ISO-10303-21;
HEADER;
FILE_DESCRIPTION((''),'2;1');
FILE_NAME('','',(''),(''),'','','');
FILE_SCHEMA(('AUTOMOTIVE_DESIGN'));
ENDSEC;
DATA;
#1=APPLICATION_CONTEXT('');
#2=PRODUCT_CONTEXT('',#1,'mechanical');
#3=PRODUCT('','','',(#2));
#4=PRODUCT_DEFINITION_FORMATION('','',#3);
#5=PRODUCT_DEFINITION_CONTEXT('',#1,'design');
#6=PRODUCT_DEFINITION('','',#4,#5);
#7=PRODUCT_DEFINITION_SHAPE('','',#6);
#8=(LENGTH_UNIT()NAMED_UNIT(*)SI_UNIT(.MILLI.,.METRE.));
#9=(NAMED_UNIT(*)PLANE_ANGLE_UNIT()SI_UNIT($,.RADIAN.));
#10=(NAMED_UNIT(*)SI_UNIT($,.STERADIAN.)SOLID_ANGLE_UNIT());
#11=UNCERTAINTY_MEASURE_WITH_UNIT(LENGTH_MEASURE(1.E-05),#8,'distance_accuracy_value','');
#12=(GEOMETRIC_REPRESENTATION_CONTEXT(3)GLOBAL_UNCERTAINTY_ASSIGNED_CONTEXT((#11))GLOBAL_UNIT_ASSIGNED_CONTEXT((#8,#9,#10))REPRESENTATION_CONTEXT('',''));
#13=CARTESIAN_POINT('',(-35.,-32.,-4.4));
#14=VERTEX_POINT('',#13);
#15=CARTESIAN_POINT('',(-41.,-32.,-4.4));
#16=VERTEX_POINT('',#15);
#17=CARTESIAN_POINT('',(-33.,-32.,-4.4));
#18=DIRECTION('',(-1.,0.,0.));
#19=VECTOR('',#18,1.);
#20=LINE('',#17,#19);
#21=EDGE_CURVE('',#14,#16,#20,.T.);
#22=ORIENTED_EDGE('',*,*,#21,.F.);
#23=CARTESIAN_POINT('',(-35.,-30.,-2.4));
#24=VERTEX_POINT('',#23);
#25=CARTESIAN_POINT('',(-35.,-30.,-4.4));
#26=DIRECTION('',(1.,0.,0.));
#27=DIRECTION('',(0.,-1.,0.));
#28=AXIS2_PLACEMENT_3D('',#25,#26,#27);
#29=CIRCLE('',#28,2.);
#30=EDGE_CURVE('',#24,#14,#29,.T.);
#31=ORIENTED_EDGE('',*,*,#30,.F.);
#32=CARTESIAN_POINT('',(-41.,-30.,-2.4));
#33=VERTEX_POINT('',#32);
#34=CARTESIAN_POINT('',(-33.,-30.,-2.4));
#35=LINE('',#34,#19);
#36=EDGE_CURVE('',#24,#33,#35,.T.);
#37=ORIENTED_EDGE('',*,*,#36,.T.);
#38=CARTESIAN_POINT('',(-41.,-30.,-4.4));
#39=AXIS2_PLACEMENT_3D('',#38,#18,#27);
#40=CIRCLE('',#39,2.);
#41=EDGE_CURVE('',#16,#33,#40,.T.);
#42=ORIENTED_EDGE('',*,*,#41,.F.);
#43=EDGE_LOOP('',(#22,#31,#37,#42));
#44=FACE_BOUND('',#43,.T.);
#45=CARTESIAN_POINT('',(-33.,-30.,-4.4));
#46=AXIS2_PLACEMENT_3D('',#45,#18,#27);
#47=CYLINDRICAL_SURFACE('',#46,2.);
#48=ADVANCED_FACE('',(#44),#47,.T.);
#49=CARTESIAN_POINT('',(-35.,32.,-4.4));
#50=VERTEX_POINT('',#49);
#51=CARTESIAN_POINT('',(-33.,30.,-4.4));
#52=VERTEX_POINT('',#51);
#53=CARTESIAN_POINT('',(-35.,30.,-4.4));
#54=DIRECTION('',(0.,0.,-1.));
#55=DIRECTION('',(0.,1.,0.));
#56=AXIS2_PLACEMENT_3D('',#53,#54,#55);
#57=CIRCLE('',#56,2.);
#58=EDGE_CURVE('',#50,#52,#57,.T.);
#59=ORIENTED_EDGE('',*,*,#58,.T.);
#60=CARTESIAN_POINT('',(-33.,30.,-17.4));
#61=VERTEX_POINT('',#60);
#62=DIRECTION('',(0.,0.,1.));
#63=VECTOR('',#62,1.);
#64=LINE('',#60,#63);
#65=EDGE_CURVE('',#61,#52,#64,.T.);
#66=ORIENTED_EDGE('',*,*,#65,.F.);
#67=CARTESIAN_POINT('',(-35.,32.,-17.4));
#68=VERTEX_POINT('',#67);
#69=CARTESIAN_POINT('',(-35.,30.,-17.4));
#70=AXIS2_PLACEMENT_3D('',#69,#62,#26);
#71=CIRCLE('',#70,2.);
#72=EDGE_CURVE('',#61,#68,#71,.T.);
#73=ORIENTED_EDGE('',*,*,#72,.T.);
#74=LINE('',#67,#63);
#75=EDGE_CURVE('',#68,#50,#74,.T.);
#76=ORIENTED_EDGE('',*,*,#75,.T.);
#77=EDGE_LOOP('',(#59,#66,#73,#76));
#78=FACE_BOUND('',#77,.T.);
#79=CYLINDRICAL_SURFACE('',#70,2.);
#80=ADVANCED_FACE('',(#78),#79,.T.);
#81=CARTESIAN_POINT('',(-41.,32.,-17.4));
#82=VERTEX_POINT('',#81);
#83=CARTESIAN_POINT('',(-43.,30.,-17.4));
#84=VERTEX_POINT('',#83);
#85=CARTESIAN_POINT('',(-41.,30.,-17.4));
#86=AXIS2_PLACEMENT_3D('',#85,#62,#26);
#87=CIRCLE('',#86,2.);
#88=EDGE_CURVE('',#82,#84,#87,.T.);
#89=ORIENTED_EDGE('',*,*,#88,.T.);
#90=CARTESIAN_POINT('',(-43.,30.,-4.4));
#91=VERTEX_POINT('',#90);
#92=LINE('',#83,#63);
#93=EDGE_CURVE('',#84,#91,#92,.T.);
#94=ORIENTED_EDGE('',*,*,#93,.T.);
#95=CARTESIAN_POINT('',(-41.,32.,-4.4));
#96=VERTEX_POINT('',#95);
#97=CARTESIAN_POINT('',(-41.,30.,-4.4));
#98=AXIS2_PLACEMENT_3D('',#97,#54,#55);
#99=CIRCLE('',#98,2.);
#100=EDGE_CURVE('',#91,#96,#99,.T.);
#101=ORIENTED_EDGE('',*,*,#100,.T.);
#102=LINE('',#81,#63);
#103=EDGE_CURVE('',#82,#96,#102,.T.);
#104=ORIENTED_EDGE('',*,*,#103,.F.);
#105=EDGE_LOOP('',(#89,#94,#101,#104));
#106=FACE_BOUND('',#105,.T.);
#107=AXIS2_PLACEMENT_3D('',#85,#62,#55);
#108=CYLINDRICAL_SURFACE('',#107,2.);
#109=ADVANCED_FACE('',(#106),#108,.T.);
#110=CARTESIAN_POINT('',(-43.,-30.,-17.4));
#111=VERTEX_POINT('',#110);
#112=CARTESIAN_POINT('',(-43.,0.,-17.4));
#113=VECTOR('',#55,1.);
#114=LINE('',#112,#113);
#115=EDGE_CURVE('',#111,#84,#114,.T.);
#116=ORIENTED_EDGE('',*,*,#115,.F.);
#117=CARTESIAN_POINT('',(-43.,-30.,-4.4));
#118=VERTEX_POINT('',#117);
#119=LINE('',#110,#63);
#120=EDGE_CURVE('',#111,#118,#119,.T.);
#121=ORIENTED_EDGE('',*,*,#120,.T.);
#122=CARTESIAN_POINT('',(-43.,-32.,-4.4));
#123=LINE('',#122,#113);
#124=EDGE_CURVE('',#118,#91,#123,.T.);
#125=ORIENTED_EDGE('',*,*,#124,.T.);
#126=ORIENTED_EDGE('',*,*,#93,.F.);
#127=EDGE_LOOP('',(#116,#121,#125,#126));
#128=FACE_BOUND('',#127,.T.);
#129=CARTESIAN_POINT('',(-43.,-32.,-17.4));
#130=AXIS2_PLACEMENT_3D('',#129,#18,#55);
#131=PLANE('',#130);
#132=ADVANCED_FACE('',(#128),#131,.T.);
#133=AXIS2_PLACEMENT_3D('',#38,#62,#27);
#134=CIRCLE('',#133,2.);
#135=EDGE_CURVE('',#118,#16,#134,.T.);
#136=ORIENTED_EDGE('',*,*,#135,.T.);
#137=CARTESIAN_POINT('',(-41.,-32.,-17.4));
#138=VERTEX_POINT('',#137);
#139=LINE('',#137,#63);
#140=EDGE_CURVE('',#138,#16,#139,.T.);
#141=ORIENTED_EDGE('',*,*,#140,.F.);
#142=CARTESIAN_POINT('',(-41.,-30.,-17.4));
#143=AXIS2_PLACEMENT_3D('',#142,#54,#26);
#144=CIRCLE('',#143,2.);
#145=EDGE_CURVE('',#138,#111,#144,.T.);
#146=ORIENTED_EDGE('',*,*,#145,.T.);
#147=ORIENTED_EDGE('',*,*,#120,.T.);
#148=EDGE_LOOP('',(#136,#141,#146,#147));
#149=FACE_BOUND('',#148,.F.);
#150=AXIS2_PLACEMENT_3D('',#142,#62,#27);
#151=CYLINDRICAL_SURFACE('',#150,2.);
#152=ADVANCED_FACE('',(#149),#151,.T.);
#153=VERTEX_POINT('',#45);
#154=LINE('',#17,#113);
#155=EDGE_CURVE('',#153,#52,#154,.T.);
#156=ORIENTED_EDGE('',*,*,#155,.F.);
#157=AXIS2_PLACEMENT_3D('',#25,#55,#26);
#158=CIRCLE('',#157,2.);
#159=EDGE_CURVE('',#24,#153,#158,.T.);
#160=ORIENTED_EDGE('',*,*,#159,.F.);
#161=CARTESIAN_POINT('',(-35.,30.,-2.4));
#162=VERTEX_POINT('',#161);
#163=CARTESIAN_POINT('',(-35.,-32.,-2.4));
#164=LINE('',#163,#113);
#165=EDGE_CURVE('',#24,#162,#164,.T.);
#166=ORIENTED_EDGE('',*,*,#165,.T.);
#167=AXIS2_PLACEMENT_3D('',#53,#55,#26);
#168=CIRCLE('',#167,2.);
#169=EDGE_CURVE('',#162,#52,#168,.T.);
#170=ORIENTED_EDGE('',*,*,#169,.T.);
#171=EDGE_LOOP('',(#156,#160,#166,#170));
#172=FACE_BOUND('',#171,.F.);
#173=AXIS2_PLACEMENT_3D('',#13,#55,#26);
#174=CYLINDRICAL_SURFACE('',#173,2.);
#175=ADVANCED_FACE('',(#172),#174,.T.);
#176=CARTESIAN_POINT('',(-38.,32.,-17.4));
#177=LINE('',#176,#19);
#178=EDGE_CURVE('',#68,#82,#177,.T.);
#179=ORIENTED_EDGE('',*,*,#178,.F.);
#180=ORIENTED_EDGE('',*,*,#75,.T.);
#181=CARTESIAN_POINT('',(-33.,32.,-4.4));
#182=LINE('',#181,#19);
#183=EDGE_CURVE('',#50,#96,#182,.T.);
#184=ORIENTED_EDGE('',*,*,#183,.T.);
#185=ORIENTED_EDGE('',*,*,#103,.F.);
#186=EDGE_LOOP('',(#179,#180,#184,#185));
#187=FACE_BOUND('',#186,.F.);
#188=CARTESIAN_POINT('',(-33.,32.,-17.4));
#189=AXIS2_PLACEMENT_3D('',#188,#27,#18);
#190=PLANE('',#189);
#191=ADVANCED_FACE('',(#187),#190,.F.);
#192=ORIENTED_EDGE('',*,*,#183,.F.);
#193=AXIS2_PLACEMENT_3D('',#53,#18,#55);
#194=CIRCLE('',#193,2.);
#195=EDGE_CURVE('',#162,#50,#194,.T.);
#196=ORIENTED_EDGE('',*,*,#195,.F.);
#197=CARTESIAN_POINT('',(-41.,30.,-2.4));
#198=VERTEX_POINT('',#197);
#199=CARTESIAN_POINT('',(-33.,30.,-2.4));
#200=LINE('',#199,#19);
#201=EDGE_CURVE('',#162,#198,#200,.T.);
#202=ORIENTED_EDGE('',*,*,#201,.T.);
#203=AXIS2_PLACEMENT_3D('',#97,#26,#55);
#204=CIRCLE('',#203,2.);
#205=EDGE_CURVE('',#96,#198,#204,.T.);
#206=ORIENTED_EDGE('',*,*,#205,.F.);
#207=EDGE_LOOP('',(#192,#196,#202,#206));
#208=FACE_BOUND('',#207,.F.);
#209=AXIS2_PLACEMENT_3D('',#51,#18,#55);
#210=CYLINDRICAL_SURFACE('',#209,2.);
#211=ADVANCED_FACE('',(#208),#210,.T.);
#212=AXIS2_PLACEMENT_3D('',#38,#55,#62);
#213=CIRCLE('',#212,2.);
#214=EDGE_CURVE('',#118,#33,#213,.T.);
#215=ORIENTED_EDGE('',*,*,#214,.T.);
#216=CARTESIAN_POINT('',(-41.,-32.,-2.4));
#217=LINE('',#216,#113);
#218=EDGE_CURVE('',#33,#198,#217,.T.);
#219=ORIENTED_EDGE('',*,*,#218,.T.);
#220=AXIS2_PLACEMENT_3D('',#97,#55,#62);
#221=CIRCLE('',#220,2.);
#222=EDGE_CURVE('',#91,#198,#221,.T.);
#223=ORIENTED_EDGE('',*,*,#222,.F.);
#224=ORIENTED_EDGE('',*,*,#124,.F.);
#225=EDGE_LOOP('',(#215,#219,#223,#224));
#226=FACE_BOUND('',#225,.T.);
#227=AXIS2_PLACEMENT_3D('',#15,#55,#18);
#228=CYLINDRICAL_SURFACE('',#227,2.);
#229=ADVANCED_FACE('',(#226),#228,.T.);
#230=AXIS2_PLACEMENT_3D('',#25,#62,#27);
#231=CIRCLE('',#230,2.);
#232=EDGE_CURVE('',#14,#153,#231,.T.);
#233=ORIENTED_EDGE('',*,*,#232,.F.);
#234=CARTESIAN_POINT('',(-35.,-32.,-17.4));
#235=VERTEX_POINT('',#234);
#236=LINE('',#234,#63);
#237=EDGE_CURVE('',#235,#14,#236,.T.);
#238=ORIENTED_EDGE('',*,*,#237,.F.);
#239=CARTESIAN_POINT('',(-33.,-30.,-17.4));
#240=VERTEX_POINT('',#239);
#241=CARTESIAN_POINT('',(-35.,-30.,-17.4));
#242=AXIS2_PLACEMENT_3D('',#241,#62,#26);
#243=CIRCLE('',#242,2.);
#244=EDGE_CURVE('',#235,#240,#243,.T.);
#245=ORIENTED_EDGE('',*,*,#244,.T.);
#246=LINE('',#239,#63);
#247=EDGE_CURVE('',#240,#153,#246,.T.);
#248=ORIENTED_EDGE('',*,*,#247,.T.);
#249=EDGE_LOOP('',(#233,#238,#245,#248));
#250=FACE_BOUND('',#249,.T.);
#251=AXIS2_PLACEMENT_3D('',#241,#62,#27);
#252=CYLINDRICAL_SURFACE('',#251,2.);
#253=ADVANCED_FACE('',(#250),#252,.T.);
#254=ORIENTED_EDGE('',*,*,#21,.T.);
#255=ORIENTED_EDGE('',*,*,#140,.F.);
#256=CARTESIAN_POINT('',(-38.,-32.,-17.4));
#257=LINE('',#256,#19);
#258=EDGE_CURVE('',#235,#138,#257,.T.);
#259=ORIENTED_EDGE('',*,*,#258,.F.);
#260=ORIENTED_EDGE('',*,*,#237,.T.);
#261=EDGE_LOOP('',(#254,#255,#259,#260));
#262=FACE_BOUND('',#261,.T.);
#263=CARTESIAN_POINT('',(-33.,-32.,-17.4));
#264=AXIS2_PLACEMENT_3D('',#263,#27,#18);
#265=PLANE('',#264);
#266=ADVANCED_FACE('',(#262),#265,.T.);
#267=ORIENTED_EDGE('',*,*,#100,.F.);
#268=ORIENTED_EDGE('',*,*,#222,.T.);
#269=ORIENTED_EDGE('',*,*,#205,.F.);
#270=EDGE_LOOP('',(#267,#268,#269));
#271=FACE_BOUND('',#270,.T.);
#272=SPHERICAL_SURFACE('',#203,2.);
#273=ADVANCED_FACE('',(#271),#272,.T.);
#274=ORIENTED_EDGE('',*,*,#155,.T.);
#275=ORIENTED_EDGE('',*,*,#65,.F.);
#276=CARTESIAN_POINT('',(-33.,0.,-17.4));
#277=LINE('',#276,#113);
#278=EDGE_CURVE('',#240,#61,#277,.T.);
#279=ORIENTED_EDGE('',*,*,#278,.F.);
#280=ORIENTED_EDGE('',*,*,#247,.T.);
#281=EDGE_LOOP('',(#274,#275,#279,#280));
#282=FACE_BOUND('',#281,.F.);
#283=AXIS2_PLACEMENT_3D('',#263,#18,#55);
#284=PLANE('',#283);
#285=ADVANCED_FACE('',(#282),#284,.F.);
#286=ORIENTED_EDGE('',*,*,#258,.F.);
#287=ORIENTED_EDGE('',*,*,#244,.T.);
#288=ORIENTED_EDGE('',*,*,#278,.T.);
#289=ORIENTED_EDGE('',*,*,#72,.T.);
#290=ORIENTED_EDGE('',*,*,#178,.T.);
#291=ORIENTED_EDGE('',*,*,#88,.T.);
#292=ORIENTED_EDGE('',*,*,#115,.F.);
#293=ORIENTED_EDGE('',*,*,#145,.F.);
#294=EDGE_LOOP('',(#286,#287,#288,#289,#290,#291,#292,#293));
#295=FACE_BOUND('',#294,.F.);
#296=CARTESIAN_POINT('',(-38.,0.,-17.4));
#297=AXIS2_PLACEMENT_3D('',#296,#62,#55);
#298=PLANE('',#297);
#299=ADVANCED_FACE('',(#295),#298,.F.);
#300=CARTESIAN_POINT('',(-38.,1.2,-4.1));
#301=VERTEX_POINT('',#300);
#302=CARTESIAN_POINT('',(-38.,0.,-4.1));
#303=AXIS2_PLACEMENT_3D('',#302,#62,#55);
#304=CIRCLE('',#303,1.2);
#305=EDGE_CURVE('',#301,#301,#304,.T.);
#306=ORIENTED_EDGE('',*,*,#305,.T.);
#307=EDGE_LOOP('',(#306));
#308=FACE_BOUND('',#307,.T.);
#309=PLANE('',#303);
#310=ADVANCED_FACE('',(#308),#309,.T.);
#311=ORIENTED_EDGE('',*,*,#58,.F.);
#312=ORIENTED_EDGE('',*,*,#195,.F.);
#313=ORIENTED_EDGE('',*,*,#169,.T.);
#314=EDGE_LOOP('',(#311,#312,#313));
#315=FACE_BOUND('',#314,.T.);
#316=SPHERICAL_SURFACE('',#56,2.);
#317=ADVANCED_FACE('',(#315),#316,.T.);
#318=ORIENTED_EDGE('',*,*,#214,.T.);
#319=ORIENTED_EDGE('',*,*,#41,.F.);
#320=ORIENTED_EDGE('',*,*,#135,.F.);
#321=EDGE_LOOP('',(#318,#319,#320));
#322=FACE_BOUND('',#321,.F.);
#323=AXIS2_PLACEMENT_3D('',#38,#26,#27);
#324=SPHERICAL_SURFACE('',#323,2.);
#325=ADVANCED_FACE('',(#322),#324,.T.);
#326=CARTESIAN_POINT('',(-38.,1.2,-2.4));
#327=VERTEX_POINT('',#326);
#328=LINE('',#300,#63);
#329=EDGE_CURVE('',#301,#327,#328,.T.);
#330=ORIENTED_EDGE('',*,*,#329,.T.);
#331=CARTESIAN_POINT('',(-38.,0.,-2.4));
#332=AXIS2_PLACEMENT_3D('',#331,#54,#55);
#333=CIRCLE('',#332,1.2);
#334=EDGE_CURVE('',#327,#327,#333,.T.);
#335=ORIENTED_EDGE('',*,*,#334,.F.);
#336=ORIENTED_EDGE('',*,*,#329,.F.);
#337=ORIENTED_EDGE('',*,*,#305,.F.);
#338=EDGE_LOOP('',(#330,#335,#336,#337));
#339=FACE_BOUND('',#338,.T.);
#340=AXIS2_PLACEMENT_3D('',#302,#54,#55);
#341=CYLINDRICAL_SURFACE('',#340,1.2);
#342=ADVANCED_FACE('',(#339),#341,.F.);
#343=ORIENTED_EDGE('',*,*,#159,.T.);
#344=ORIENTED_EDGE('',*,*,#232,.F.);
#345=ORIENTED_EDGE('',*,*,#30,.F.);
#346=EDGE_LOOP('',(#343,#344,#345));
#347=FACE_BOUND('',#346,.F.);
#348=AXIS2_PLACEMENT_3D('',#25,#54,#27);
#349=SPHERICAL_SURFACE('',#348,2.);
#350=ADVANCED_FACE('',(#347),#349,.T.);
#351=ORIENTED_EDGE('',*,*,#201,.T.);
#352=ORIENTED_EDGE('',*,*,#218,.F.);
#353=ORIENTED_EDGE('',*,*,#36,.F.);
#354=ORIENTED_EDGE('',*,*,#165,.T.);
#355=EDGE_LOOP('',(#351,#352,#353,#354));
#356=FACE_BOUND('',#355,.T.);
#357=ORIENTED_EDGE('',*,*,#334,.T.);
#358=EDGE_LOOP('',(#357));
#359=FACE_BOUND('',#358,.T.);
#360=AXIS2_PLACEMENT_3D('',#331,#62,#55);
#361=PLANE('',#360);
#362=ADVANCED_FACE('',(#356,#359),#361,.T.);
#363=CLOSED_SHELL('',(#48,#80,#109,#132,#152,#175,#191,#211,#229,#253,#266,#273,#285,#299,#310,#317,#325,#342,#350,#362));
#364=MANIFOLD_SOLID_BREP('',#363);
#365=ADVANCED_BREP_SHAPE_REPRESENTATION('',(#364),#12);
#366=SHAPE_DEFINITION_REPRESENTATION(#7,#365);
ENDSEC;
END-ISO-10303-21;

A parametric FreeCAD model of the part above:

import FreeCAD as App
import Part
import Sketcher

V = App.Vector
Q = App.Units.Quantity


def edges_at(feature, points):
    """Names of the edges that pass closest to the given points."""
    edges = feature.Shape.Edges
    near = lambda p: min(range(len(edges)), key=lambda i: edges[i].distToShape(Part.Vertex(*p))[0])
    return sorted({f"Edge{near(p) + 1}" for p in points})


def add_polygon(sketch, points):
    """Adds a closed chain of lines whose ends are joined by coincident constraints."""
    first, n = sketch.GeometryCount, len(points)
    for a, b in zip(points, points[1:] + points[:1]):
        sketch.addGeometry(Part.LineSegment(App.Vector(*a, 0), App.Vector(*b, 0)), False)
    for i in range(n):
        sketch.addConstraint(Sketcher.Constraint("Coincident", first + i, 2, first + (i + 1) % n, 1))

doc = App.newDocument("Part")
params = doc.addObject("Spreadsheet::Sheet", "Params")
for row, (alias, value) in enumerate([
    ("sketch1_diameter", "2.4 mm"),
    ("pad1_length", "1.8 mm"),
    ("sketch2_width", "64 mm"),
    ("sketch2_height", "10 mm"),
    ("pad2_length", "15 mm"),
    ("fillet_radius", "2 mm"),
], start=1):
    params.set(f"A{row}", alias)
    params.set(f"B{row}", "=" + value)
    params.setAlias(f"B{row}", alias)

body = doc.addObject("PartDesign::Body", "Body")

sketch1 = body.newObject("Sketcher::SketchObject", "Sketch")
sketch1.AttachmentSupport = (doc.getObject("XY_Plane"), [""])
sketch1.MapMode = "FlatFace"
sketch1.AttachmentOffset = App.Placement(V(0, 0, 11.9), App.Rotation())
sketch1.addGeometry(Part.Circle(V(0, -50, 0), V(0, 0, 1), 1.2), False)
sketch1.addConstraint(Sketcher.Constraint("PointOnObject", 0, 3, -2))
sketch1.addConstraint(Sketcher.Constraint("Diameter", 0, Q("2.4 mm")))
sketch1.addConstraint(Sketcher.Constraint("DistanceY", 0, 3, -1, 1, Q("50 mm")))
sketch1.setExpression("Constraints[1]", "Params.sketch1_diameter")
pad1 = body.newObject("PartDesign::Pad", "Pad")
pad1.Profile = sketch1
pad1.setExpression("Length", "Params.pad1_length")
body2 = doc.addObject("PartDesign::Body", "Body001")

sketch2 = body2.newObject("Sketcher::SketchObject", "Sketch001")
sketch2.AttachmentSupport = (doc.getObject("XY_Plane001"), [""])
sketch2.MapMode = "FlatFace"
sketch2.AttachmentOffset = App.Placement(V(0, 0, -1.4), App.Rotation())
add_polygon(sketch2, [(-32, -45), (-32, -55), (32, -55), (32, -45)])
sketch2.addConstraint(Sketcher.Constraint("Vertical", 0))
sketch2.addConstraint(Sketcher.Constraint("Horizontal", 1))
sketch2.addConstraint(Sketcher.Constraint("Vertical", 2))
sketch2.addConstraint(Sketcher.Constraint("Horizontal", 3))
sketch2.addConstraint(Sketcher.Constraint("DistanceX", 1, 1, 1, 2, Q("64 mm")))
sketch2.addConstraint(Sketcher.Constraint("DistanceY", 0, 2, 0, 1, Q("10 mm")))
sketch2.addConstraint(Sketcher.Constraint("DistanceX", 0, 2, -1, 1, Q("32 mm")))
sketch2.addConstraint(Sketcher.Constraint("DistanceY", 0, 2, -1, 1, Q("55 mm")))
sketch2.setExpression("Constraints[8]", "Params.sketch2_width")
sketch2.setExpression("Constraints[9]", "Params.sketch2_height")
pad2 = body2.newObject("PartDesign::Pad", "Pad001")
pad2.Profile = sketch2
pad2.setExpression("Length", "Params.pad2_length")
doc.recompute()

fillet = body2.newObject("PartDesign::Fillet", "Fillet")
fillet.Base = (pad2, edges_at(pad2, [
    (-32, -55, 6.1),
    (-32, -50, 13.6),
    (-32, -45, 6.1),
    (32, -55, 6.1),
    (32, -50, 13.6),
    (32, -45, 6.1),
    (0, -55, 13.6),
    (0, -45, 13.6),
]))
fillet.setExpression("Radius", "Params.fillet_radius")
doc.recompute()

boolean = body2.newObject("PartDesign::Boolean", "Boolean")
boolean.Type = "Cut"
boolean.addObjects([body])
body3 = doc.addObject("PartDesign::Body", "Body002")
doc.recompute()

body2.Placement = App.Placement(V(-88, 0, -16), App.Rotation(V(0, 0, 1), 90))
boolean2 = body3.newObject("PartDesign::Boolean", "Boolean001")
boolean2.Type = "Fuse"
boolean2.addObjects([body2])

doc.recompute()
